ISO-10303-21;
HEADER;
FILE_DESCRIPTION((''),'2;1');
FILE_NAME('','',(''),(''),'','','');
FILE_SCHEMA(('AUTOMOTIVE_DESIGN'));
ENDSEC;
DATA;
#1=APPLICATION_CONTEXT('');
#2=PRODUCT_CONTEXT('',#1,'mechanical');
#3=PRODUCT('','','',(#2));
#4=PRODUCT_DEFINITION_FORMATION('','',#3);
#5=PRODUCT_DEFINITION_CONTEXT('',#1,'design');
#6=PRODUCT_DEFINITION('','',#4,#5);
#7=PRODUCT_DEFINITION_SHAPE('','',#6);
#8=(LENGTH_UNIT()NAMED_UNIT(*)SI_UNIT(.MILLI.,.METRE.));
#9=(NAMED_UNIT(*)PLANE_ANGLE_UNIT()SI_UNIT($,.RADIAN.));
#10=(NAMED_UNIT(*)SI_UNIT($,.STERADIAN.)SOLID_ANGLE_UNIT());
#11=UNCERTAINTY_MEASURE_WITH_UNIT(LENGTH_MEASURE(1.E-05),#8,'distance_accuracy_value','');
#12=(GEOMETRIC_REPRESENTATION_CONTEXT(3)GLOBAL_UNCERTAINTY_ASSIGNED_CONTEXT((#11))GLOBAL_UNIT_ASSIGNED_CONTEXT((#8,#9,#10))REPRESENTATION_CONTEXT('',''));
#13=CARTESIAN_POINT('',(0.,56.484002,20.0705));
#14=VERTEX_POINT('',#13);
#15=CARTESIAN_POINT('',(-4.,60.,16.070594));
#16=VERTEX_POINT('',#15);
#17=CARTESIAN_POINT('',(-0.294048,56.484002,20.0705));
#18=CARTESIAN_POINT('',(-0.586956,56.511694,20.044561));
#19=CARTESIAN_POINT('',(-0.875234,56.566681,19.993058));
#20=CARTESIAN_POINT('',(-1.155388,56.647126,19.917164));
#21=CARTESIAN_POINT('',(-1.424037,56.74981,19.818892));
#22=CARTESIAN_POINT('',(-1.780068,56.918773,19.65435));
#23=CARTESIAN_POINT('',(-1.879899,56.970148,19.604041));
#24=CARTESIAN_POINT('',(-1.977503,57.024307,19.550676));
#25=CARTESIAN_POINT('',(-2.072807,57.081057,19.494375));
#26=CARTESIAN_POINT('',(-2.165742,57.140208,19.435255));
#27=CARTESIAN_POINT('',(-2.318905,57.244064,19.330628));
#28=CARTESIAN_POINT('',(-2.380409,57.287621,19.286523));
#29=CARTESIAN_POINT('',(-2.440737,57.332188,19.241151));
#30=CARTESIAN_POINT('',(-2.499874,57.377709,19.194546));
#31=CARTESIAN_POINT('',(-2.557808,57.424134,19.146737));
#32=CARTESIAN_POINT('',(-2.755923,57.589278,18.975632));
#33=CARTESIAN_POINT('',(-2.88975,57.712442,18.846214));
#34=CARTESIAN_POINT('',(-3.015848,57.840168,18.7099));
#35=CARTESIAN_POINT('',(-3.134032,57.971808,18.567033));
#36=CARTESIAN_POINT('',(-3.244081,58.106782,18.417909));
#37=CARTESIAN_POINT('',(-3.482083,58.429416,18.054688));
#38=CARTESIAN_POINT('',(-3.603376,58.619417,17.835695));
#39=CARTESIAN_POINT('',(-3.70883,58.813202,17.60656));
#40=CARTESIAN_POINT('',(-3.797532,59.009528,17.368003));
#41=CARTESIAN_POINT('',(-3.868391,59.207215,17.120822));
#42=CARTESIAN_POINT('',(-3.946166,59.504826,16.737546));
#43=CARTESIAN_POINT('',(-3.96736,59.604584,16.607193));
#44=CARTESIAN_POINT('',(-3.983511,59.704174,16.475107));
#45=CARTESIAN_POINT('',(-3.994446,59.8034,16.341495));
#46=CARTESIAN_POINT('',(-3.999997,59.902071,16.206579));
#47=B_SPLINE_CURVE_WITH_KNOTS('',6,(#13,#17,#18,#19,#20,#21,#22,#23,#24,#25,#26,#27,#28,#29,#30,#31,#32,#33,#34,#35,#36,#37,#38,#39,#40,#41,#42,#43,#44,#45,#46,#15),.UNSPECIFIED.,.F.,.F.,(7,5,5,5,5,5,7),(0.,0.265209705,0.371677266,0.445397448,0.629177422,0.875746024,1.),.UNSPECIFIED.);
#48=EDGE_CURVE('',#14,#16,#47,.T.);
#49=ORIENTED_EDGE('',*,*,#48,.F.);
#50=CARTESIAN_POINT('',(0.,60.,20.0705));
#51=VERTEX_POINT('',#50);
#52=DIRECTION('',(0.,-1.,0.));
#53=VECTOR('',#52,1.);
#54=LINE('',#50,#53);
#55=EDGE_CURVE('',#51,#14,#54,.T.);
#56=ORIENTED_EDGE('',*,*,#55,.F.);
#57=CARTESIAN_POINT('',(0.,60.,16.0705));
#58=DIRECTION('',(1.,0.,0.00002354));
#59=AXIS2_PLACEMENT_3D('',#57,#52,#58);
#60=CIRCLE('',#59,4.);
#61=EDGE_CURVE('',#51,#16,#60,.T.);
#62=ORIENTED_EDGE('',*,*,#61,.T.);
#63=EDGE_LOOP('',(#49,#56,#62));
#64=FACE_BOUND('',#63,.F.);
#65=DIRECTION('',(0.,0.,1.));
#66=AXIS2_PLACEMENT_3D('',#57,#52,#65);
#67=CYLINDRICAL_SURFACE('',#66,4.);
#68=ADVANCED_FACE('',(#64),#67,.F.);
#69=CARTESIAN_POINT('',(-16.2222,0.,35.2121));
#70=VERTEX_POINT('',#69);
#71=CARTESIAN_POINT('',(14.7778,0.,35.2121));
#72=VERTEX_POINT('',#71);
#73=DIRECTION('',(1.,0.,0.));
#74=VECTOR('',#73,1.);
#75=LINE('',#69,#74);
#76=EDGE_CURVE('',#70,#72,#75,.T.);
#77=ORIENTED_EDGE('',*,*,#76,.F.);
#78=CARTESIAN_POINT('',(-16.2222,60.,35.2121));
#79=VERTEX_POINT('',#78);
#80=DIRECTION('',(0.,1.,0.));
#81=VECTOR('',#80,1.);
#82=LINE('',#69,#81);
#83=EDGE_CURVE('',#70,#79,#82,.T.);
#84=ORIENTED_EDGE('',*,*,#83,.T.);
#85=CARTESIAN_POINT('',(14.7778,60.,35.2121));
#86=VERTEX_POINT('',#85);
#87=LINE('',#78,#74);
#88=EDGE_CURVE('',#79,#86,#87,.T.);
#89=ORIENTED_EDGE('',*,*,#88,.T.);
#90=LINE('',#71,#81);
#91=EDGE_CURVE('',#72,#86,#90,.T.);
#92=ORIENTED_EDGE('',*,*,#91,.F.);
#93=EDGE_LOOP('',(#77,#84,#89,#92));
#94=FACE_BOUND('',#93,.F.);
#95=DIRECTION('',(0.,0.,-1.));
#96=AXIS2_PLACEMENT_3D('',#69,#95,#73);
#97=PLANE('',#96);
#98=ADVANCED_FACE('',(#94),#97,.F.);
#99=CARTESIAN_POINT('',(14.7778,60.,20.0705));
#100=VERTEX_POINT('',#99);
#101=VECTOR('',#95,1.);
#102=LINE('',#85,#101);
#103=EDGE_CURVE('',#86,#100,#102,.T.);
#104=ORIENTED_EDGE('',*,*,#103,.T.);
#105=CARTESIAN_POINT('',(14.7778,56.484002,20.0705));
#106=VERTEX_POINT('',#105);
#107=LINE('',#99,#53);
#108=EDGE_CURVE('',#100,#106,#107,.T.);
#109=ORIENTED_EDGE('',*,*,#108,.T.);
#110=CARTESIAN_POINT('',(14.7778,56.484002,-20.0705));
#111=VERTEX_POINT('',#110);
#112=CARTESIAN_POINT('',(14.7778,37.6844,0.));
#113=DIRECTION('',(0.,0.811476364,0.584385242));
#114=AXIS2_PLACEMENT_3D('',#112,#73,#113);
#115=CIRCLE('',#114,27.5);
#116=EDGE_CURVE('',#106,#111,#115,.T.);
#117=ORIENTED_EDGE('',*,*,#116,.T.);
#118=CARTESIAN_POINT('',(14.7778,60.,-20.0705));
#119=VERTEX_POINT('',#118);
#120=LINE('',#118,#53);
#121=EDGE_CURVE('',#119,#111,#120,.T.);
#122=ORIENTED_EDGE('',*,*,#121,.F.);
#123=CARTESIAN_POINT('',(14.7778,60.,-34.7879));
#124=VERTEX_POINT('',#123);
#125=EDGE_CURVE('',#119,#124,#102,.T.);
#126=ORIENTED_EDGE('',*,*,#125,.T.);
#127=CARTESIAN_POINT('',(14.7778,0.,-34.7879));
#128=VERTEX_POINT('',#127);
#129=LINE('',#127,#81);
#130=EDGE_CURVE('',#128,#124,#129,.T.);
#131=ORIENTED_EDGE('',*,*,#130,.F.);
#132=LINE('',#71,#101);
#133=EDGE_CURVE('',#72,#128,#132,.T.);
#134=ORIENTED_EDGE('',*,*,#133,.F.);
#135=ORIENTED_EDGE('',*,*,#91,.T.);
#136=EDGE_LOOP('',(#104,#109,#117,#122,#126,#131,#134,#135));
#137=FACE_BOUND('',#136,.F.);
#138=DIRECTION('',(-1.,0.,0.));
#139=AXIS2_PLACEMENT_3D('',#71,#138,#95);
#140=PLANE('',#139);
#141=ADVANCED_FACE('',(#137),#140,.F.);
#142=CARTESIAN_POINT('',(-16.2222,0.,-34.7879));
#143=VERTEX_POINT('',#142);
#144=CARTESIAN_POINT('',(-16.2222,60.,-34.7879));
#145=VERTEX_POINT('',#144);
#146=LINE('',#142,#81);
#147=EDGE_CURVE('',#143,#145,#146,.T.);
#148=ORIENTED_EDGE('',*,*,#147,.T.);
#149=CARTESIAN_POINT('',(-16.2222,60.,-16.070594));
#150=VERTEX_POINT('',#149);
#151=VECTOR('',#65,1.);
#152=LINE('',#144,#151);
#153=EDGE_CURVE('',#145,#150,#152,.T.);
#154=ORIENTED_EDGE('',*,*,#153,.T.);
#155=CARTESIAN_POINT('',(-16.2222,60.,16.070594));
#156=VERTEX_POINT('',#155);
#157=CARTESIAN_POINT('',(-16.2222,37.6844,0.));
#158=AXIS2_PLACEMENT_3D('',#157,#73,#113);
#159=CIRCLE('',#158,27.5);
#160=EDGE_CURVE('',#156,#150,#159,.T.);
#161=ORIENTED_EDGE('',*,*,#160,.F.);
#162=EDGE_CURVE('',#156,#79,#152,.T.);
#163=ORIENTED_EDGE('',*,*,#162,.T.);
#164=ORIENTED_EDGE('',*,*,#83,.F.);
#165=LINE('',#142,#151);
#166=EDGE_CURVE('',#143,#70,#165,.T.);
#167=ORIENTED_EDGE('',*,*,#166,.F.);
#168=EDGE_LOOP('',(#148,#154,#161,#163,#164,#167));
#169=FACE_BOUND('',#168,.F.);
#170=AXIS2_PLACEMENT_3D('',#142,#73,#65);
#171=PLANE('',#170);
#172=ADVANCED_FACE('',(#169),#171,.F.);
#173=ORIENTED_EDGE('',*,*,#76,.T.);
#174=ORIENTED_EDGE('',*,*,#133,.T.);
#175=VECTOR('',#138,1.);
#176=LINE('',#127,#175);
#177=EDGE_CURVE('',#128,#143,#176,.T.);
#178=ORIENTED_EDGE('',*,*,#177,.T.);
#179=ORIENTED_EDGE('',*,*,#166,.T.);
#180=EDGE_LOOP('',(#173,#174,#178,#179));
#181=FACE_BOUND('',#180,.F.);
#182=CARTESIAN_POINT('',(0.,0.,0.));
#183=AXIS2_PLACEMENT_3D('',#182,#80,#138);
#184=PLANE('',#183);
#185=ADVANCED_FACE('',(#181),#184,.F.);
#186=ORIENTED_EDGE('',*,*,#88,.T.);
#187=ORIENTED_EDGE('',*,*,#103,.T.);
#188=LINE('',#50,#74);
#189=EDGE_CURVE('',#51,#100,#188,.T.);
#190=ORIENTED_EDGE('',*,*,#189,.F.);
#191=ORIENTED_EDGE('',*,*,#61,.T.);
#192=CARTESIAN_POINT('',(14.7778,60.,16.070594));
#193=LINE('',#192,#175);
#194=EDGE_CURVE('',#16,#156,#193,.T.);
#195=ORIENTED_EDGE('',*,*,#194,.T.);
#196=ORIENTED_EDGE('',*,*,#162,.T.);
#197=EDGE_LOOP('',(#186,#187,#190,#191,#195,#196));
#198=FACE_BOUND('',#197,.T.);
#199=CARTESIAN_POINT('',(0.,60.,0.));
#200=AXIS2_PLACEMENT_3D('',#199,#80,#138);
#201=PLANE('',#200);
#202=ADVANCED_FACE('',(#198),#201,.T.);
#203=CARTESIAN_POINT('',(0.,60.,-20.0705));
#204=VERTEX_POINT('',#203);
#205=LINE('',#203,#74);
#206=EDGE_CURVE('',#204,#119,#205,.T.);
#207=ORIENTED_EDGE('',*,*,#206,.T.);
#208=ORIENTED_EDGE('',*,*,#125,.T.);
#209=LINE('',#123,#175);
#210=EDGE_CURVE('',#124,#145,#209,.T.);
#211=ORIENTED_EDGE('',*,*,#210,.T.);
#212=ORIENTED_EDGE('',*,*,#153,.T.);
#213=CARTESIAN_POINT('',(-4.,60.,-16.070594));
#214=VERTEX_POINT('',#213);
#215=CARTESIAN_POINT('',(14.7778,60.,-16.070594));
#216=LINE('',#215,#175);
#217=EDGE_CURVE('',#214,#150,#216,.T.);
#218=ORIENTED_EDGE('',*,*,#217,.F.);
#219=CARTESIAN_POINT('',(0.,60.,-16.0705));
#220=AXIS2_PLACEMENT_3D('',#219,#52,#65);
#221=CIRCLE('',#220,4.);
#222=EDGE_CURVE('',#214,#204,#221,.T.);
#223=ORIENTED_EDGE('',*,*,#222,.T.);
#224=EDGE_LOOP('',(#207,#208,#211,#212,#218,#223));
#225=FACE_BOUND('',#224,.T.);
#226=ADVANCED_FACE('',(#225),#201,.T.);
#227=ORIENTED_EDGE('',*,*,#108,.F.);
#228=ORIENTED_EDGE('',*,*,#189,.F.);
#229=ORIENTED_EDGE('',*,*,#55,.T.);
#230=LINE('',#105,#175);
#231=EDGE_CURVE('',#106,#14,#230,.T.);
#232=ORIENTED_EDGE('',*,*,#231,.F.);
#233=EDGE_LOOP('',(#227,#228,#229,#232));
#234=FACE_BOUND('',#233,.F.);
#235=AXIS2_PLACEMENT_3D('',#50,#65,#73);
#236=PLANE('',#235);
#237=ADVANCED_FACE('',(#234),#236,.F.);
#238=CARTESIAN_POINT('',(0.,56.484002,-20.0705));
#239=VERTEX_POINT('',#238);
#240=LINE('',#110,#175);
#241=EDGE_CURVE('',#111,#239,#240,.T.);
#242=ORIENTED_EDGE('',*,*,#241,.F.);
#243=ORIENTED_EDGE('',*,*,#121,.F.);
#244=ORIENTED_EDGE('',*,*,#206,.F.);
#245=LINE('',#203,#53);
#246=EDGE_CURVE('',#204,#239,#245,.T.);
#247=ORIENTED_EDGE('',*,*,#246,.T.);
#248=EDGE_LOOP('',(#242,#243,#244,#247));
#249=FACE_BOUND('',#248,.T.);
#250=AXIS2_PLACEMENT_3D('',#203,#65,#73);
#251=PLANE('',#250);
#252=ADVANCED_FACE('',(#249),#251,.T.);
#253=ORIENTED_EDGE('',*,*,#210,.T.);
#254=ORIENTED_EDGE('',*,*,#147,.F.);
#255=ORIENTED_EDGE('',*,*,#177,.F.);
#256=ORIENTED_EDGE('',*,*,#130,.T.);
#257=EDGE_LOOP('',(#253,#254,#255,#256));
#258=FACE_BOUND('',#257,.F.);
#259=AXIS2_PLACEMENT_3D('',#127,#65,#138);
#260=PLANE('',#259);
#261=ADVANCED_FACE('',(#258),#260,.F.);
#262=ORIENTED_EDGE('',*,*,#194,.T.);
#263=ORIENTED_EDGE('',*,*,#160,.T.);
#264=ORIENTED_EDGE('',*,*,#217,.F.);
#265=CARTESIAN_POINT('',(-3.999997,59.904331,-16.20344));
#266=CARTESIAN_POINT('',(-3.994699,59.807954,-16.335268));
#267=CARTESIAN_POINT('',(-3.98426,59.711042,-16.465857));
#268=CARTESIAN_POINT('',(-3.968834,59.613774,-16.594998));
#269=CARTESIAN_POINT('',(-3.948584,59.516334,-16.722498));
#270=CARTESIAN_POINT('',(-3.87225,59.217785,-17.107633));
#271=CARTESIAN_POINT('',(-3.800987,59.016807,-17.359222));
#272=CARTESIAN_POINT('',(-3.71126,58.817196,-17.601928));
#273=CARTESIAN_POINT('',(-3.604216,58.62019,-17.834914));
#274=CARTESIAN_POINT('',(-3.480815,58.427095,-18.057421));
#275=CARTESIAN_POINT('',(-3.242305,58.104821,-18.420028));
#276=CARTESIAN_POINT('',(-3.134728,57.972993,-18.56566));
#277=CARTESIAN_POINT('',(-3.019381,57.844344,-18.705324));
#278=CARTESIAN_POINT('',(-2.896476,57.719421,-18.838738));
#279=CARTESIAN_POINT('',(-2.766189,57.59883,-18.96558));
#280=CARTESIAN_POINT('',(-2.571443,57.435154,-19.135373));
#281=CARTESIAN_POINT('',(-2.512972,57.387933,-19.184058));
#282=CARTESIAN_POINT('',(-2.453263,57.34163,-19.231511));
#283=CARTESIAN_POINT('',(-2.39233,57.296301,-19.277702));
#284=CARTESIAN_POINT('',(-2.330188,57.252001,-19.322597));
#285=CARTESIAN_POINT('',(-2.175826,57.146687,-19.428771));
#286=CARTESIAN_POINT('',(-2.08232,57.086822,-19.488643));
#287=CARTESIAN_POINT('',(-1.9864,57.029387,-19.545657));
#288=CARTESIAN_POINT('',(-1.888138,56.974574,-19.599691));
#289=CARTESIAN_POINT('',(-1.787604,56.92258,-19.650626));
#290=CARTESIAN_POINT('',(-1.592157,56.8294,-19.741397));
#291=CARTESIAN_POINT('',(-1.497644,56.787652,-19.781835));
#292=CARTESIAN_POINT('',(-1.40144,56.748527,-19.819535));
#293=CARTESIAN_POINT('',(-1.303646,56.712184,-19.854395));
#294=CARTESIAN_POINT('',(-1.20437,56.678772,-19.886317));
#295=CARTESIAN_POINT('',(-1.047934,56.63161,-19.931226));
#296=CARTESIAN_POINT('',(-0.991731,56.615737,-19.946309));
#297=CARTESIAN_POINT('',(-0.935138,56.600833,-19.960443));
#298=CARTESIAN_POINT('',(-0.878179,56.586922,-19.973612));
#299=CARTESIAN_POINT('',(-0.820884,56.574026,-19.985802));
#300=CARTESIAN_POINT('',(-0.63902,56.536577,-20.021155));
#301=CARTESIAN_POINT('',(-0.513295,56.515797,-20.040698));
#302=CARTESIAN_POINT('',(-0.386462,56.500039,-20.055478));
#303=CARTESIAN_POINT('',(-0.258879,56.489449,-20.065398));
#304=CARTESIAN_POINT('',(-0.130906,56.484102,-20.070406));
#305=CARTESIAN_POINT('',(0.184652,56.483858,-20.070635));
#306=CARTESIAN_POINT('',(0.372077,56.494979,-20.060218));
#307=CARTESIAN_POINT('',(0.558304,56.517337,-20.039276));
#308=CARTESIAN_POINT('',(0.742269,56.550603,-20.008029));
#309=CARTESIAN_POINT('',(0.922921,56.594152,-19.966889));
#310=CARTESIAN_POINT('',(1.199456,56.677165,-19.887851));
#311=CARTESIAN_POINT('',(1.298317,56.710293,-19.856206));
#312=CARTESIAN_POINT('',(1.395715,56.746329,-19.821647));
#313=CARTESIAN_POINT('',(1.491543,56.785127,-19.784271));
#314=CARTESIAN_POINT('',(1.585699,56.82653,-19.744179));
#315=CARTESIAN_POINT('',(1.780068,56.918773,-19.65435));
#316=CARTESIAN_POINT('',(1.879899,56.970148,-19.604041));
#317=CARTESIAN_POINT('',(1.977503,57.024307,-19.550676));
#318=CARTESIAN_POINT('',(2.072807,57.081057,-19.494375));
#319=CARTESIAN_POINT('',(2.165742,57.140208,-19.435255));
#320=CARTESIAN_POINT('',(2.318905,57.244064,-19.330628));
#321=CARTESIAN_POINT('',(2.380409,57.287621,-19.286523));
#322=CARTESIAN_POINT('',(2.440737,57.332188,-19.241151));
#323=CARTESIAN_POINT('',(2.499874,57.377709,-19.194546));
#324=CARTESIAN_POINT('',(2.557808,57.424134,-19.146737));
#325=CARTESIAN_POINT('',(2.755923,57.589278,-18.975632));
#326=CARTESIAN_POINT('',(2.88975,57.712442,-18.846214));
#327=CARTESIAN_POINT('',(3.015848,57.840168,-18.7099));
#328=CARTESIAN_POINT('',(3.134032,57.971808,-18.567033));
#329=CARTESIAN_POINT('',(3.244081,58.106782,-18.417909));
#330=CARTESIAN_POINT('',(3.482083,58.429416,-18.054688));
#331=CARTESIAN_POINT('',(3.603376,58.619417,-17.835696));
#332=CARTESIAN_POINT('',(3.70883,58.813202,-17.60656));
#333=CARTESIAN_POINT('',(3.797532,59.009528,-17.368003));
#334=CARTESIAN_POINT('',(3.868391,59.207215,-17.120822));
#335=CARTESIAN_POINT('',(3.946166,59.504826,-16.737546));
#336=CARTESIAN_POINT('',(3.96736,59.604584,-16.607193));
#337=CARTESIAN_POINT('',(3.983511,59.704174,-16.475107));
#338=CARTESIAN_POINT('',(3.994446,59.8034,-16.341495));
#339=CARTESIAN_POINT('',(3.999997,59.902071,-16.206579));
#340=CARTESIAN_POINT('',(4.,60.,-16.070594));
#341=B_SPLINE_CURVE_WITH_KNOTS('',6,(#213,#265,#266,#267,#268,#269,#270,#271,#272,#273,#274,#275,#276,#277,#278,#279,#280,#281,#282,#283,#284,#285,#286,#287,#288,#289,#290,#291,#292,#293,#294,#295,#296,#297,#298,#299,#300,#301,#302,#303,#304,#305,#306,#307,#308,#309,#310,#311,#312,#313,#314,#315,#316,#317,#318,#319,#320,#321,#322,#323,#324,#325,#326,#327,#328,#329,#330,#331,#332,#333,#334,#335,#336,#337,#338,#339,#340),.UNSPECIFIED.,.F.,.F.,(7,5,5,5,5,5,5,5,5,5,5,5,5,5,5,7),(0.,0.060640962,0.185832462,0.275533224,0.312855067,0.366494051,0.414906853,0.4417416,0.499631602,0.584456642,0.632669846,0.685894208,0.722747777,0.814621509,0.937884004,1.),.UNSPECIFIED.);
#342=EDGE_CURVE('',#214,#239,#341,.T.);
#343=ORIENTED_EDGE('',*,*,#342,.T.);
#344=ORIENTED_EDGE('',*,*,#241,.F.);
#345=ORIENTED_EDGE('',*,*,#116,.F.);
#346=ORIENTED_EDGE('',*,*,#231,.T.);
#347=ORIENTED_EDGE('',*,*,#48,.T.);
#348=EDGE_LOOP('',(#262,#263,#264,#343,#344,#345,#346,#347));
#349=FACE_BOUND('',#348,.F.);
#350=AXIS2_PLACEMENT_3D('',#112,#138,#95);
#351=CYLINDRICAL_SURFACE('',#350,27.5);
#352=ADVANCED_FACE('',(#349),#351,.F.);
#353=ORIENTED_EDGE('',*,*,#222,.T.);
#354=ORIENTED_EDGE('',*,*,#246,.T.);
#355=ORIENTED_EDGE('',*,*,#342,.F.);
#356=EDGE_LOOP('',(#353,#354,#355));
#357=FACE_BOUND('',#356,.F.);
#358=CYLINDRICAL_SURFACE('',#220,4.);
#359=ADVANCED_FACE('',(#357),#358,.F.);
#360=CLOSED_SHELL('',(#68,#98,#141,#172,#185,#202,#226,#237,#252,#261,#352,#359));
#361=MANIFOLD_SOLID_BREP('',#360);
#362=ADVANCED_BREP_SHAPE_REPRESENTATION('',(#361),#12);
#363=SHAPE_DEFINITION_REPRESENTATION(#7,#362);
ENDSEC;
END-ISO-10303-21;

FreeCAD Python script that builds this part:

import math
import FreeCAD as App
import Part
import Sketcher
Q = App.Units.Quantity


def add_polygon(sketch, points):
    """Adds a closed chain of lines whose ends are joined by coincident constraints."""
    first, n = sketch.GeometryCount, len(points)
    for a, b in zip(points, points[1:] + points[:1]):
        sketch.addGeometry(Part.LineSegment(App.Vector(*a, 0), App.Vector(*b, 0)), False)
    for i in range(n):
        sketch.addConstraint(Sketcher.Constraint("Coincident", first + i, 2, first + (i + 1) % n, 1))

doc = App.newDocument("Part")
body = doc.addObject("PartDesign::Body", "Body")

# Sketch on XZ plane
sketch1 = body.newObject("Sketcher::SketchObject", "Sketch")
sketch1.AttachmentSupport = (doc.getObject("XZ_Plane"), [""])
sketch1.MapMode = "FlatFace"
add_polygon(sketch1, [(-16, -35), (-16, 35), (15, 35), (15, -35)])  # lines 0-3
sketch1.addConstraint(Sketcher.Constraint("Vertical", 0))
sketch1.addConstraint(Sketcher.Constraint("Horizontal", 1))
sketch1.addConstraint(Sketcher.Constraint("Vertical", 2))
sketch1.addConstraint(Sketcher.Constraint("Horizontal", 3))
sketch1.addConstraint(Sketcher.Constraint("DistanceX", 1, 1, 1, 2, Q("31 mm")))
sketch1.addConstraint(Sketcher.Constraint("DistanceY", 0, 1, 0, 2, Q("70 mm")))
sketch1.addConstraint(Sketcher.Constraint("DistanceY", -1, 1, 0, 2, Q("35.212 mm")))
sketch1.addConstraint(Sketcher.Constraint("DistanceX", 0, 2, -1, 1, Q("16.2222 mm")))
pad1 = body.newObject("PartDesign::Pad", "Pad")
pad1.Profile = sketch1
pad1.Length = 60
pad1.Reversed = True

# Sketch on YZ plane
sketch2 = body.newObject("Sketcher::SketchObject", "Sketch001")
sketch2.AttachmentSupport = (doc.getObject("YZ_Plane"), [""])
sketch2.MapMode = "FlatFace"
sketch2.AttachmentOffset = App.Placement(App.Vector(0, 0, 14.7778), App.Rotation())
sketch2.addGeometry(Part.Circle(App.Vector(38, 0, 0), App.Vector(0, 0, 1), 28), False)
sketch2.addConstraint(Sketcher.Constraint("PointOnObject", 0, 3, -1))
sketch2.addConstraint(Sketcher.Constraint("Diameter", 0, Q("55 mm")))
sketch2.addConstraint(Sketcher.Constraint("DistanceX", -1, 1, 0, 3, Q("37.6844 mm")))
doc.recompute()
hole = body.newObject("PartDesign::Hole", "Hole")
hole.Profile = sketch2
hole.ThreadType = "None"
hole.Diameter = 55
hole.DepthType = "ThroughAll"

# Sketch on XZ plane
sketch3 = body.newObject("Sketcher::SketchObject", "Sketch002")
sketch3.AttachmentSupport = (doc.getObject("XZ_Plane"), [""])
sketch3.MapMode = "FlatFace"
sketch3.AttachmentOffset = App.Placement(App.Vector(0, 0, -60), App.Rotation())
sketch3.addGeometry(Part.Circle(App.Vector(0, 16.1, 0), App.Vector(0, 0, 1), 4), False)
sketch3.addConstraint(Sketcher.Constraint("PointOnObject", 0, 3, -2))
sketch3.addConstraint(Sketcher.Constraint("Diameter", 0, Q("8 mm")))
sketch3.addConstraint(Sketcher.Constraint("DistanceY", -1, 1, 0, 3, Q("16.0705 mm")))
doc.recompute()
hole2 = body.newObject("PartDesign::Hole", "Hole001")
hole2.Profile = sketch3
hole2.ThreadType = "None"
hole2.Diameter = 8
hole2.DepthType = "Dimension"
hole2.Depth = 8
hole2.DrillPoint = "Angled"
hole2.DrillPointAngle = 118
hole2.Reversed = True

# Sketch on XZ plane
sketch4 = body.newObject("Sketcher::SketchObject", "Sketch003")
sketch4.AttachmentSupport = (doc.getObject("XZ_Plane"), [""])
sketch4.MapMode = "FlatFace"
sketch4.AttachmentOffset = App.Placement(App.Vector(0, 0, -60), App.Rotation())
sketch4.addGeometry(Part.Circle(App.Vector(0, -16.1, 0), App.Vector(0, 0, 1), 4), False)
sketch4.addConstraint(Sketcher.Constraint("PointOnObject", 0, 3, -2))
sketch4.addConstraint(Sketcher.Constraint("Diameter", 0, Q("8 mm")))
sketch4.addConstraint(Sketcher.Constraint("DistanceY", 0, 3, -1, 1, Q("16.0705 mm")))
doc.recompute()
hole3 = body.newObject("PartDesign::Hole", "Hole002")
hole3.Profile = sketch4
hole3.ThreadType = "None"
hole3.Diameter = 8
hole3.DepthType = "Dimension"
hole3.Depth = 8
hole3.DrillPoint = "Angled"
hole3.DrillPointAngle = 118
hole3.Reversed = True

# Sketch on XZ plane
sketch5 = body.newObject("Sketcher::SketchObject", "Sketch004")
sketch5.AttachmentSupport = (doc.getObject("XZ_Plane"), [""])
sketch5.MapMode = "FlatFace"
sketch5.AttachmentOffset = App.Placement(App.Vector(0, 0, -60), App.Rotation())
sketch5.addGeometry(Part.ArcOfCircle(Part.Circle(App.Vector(0, 16.1, 0), App.Vector(0, 0, 1), 4), math.radians(0), math.radians(90)), False)
sketch5.addGeometry(Part.LineSegment(App.Vector(0, 20.1, 0), App.Vector(14.8, 20.1, 0)), False)
sketch5.addGeometry(Part.LineSegment(App.Vector(14.8, 20.1, 0), App.Vector(14.8, 16.1, 0)), False)
sketch5.addGeometry(Part.LineSegment(App.Vector(14.8, 16.1, 0), App.Vector(4, 16.1, 0)), False)
sketch5.addConstraint(Sketcher.Constraint("Tangent", 0, 2, 1, 1))
sketch5.addConstraint(Sketcher.Constraint("Coincident", 1, 2, 2, 1))
sketch5.addConstraint(Sketcher.Constraint("Coincident", 2, 2, 3, 1))
sketch5.addConstraint(Sketcher.Constraint("Coincident", 3, 2, 0, 1))
sketch5.addConstraint(Sketcher.Constraint("Horizontal", 1))
sketch5.addConstraint(Sketcher.Constraint("Vertical", 2))
sketch5.addConstraint(Sketcher.Constraint("Horizontal", 3))
sketch5.addConstraint(Sketcher.Constraint("PointOnObject", 0, 3, -2))
sketch5.addConstraint(Sketcher.Constraint("Horizontal", 0, 3, 2, 2))
sketch5.addConstraint(Sketcher.Constraint("Radius", 0, Q("4 mm")))
sketch5.addConstraint(Sketcher.Constraint("DistanceX", 1, 1, 1, 2, Q("14.7778 mm")))
sketch5.addConstraint(Sketcher.Constraint("DistanceY", -1, 1, 0, 3, Q("16.0705 mm")))
pocket1 = body.newObject("PartDesign::Pocket", "Pocket")
pocket1.Profile = sketch5
pocket1.Length = 10
pocket1.Reversed = True

# Sketch on XZ plane
sketch6 = body.newObject("Sketcher::SketchObject", "Sketch005")
sketch6.AttachmentSupport = (doc.getObject("XZ_Plane"), [""])
sketch6.MapMode = "FlatFace"
sketch6.AttachmentOffset = App.Placement(App.Vector(0, 0, -60), App.Rotation())
add_polygon(sketch6, [(0, -16.1), (14.8, -16.1), (14.8, -20.1), (0, -20.1)])  # lines 0-3
sketch6.addConstraint(Sketcher.Constraint("Horizontal", 0))
sketch6.addConstraint(Sketcher.Constraint("Vertical", 1))
sketch6.addConstraint(Sketcher.Constraint("Horizontal", 2))
sketch6.addConstraint(Sketcher.Constraint("Vertical", 3))
sketch6.addConstraint(Sketcher.Constraint("PointOnObject", 2, 2, -2))
sketch6.addConstraint(Sketcher.Constraint("DistanceY", 1, 2, 1, 1, Q("4 mm")))
sketch6.addConstraint(Sketcher.Constraint("DistanceX", 0, 1, 0, 2, Q("14.7778 mm")))
sketch6.addConstraint(Sketcher.Constraint("DistanceY", 0, 2, -1, 1, Q("16.0705 mm")))
pocket2 = body.newObject("PartDesign::Pocket", "Pocket001")
pocket2.Profile = sketch6
pocket2.Length = 10
pocket2.Reversed = True

doc.recompute()
